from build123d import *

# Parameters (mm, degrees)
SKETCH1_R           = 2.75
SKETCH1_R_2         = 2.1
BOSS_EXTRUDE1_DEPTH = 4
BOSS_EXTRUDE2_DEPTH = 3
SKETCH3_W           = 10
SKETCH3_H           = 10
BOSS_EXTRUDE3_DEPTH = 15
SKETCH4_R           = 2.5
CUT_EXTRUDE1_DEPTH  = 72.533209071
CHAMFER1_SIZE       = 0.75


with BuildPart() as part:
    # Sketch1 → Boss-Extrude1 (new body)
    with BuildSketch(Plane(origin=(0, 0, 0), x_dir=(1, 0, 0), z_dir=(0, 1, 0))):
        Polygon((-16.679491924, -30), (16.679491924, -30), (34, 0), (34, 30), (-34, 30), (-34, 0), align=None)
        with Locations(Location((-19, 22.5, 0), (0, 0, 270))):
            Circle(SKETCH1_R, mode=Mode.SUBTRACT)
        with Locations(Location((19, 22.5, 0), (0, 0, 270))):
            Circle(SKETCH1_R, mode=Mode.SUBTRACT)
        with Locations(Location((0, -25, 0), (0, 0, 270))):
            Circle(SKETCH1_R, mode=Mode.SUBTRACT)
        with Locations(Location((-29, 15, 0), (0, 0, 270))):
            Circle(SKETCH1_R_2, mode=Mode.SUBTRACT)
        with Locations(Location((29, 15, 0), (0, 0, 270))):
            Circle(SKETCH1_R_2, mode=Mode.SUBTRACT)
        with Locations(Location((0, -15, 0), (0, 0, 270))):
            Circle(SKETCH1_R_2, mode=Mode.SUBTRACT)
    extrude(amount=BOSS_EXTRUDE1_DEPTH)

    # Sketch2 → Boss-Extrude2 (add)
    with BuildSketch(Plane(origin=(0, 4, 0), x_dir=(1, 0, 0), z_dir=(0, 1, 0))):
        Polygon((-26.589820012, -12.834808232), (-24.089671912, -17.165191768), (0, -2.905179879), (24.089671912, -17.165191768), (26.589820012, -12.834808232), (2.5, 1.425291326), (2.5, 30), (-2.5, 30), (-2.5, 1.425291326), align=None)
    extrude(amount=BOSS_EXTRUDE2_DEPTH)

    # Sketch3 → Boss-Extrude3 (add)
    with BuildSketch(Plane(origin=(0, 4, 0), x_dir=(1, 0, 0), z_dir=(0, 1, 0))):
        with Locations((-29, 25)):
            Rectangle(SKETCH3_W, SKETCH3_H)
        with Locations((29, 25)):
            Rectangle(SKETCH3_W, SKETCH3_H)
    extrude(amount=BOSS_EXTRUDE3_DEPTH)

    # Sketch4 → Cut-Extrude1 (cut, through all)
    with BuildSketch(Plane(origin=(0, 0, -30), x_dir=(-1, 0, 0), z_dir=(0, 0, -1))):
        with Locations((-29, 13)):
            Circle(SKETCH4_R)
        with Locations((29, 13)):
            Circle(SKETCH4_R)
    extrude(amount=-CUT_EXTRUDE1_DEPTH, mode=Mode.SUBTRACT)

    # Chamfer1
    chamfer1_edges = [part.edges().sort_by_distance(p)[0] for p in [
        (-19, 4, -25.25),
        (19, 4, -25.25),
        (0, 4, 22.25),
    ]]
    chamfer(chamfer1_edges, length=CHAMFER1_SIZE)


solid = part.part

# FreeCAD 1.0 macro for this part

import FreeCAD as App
import Part
import Sketcher
Q = App.Units.Quantity


def edges_at(feature, points):
    """Names of the edges that pass closest to the given points."""
    edges = feature.Shape.Edges
    near = lambda p: min(range(len(edges)), key=lambda i: edges[i].distToShape(Part.Vertex(*p))[0])
    return sorted({f"Edge{near(p) + 1}" for p in points})

doc = App.newDocument("Part")
body = doc.addObject("PartDesign::Body", "Body")

# Sketch on XZ plane
sketch1 = doc.addObject("Sketcher::SketchObject", "Sketch")
body.addObject(sketch1)
sketch1.AttachmentSupport = (doc.XZ_Plane, [""])
sketch1.MapMode = "FlatFace"
sketch1.addGeometry(Part.LineSegment(App.Vector(-16.7, 30, 0), App.Vector(16.7, 30, 0)), False)
sketch1.addGeometry(Part.LineSegment(App.Vector(16.7, 30, 0), App.Vector(34, 0, 0)), False)
sketch1.addGeometry(Part.LineSegment(App.Vector(34, 0, 0), App.Vector(34, -30, 0)), False)
sketch1.addGeometry(Part.LineSegment(App.Vector(34, -30, 0), App.Vector(-34, -30, 0)), False)
sketch1.addGeometry(Part.LineSegment(App.Vector(-34, -30, 0), App.Vector(-34, 0, 0)), False)
sketch1.addGeometry(Part.LineSegment(App.Vector(-34, 0, 0), App.Vector(-16.7, 30, 0)), False)
sketch1.addGeometry(Part.Circle(App.Vector(0, 25, 0), App.Vector(0, 0, 1), 2.8), False)
sketch1.addGeometry(Part.Circle(App.Vector(0, 15, 0), App.Vector(0, 0, 1), 2.1), False)
sketch1.addGeometry(Part.Circle(App.Vector(-29, -15, 0), App.Vector(0, 0, 1), 2.1), False)
sketch1.addGeometry(Part.Circle(App.Vector(-19, -22.5, 0), App.Vector(0, 0, 1), 2.8), False)
sketch1.addGeometry(Part.Circle(App.Vector(29, -15, 0), App.Vector(0, 0, 1), 2.1), False)
sketch1.addGeometry(Part.Circle(App.Vector(19, -22.5, 0), App.Vector(0, 0, 1), 2.8), False)
sketch1.addConstraint(Sketcher.Constraint("Coincident", 0, 2, 1, 1))
sketch1.addConstraint(Sketcher.Constraint("Coincident", 1, 2, 2, 1))
sketch1.addConstraint(Sketcher.Constraint("Coincident", 2, 2, 3, 1))
sketch1.addConstraint(Sketcher.Constraint("Coincident", 3, 2, 4, 1))
sketch1.addConstraint(Sketcher.Constraint("Coincident", 4, 2, 5, 1))
sketch1.addConstraint(Sketcher.Constraint("Coincident", 5, 2, 0, 1))
sketch1.addConstraint(Sketcher.Constraint("Horizontal", 0))
sketch1.addConstraint(Sketcher.Constraint("Vertical", 2))
sketch1.addConstraint(Sketcher.Constraint("Horizontal", 3))
sketch1.addConstraint(Sketcher.Constraint("Vertical", 4))
sketch1.addConstraint(Sketcher.Constraint("Equal", 7, 8))
sketch1.addConstraint(Sketcher.Constraint("Equal", 6, 9))
sketch1.addConstraint(Sketcher.Constraint("Equal", 8, 10))
sketch1.addConstraint(Sketcher.Constraint("Equal", 9, 11))
sketch1.addConstraint(Sketcher.Constraint("Symmetric", 1, 2, 4, 2, -1, 1))
sketch1.addConstraint(Sketcher.Constraint("Symmetric", 8, 3, 10, 3, -2))
sketch1.addConstraint(Sketcher.Constraint("Symmetric", 9, 3, 11, 3, -2))
sketch1.addConstraint(Sketcher.Constraint("PointOnObject", 6, 3, -2))
sketch1.addConstraint(Sketcher.Constraint("PointOnObject", 7, 3, -2))
sketch1.addConstraint(Sketcher.Constraint("PointOnObject", 1, 2, -1))
sketch1.addConstraint(Sketcher.Constraint("Equal", 1, 5))
sketch1.addConstraint(Sketcher.Constraint("Diameter", 6, 5.5))
sketch1.addConstraint(Sketcher.Constraint("Diameter", 7, 4.2))
sketch1.addConstraint(Sketcher.Constraint("DistanceX", 3, 2, 3, 1, 68.0))
sketch1.addConstraint(Sketcher.Constraint("DistanceY", 2, 2, 2, 1, 30.0))
sketch1.addConstraint(Sketcher.Constraint("Angle", 1, Q("-60 deg")))
sketch1.addConstraint(Sketcher.Constraint("DistanceY", -1, 1, 6, 3, 25.0))
sketch1.addConstraint(Sketcher.Constraint("DistanceY", -1, 1, 7, 3, 15.0))
sketch1.addConstraint(Sketcher.Constraint("DistanceX", 8, 3, -1, 1, 29.0))
sketch1.addConstraint(Sketcher.Constraint("DistanceY", 8, 3, -1, 1, 15.0))
sketch1.addConstraint(Sketcher.Constraint("DistanceX", 9, 3, -1, 1, 19.0))
sketch1.addConstraint(Sketcher.Constraint("DistanceY", -1, 1, 0, 2, 30.0))
sketch1.addConstraint(Sketcher.Constraint("DistanceY", 9, 3, -1, 1, 22.5))
pad1 = doc.addObject("PartDesign::Pad", "Pad")
body.addObject(pad1)
pad1.Profile = sketch1
pad1.Length = 4
pad1.Reversed = True

# Sketch on XZ plane
sketch2 = doc.addObject("Sketcher::SketchObject", "Sketch001")
body.addObject(sketch2)
sketch2.AttachmentSupport = (doc.XZ_Plane, [""])
sketch2.MapMode = "FlatFace"
sketch2.AttachmentOffset = App.Placement(App.Vector(0, 0, -4), App.Rotation())
sketch2.addGeometry(Part.LineSegment(App.Vector(-27, 13, 0), App.Vector(-24, 17, 0)), False)
sketch2.addGeometry(Part.LineSegment(App.Vector(-24, 17, 0), App.Vector(0, 3, 0)), False)
sketch2.addGeometry(Part.LineSegment(App.Vector(0, 3, 0), App.Vector(24, 17, 0)), False)
sketch2.addGeometry(Part.LineSegment(App.Vector(24, 17, 0), App.Vector(27, 13, 0)), False)
sketch2.addGeometry(Part.LineSegment(App.Vector(27, 13, 0), App.Vector(2, -1, 0)), False)
sketch2.addGeometry(Part.LineSegment(App.Vector(2, -1, 0), App.Vector(2, -30, 0)), False)
sketch2.addGeometry(Part.LineSegment(App.Vector(2, -30, 0), App.Vector(-2, -30, 0)), False)
sketch2.addGeometry(Part.LineSegment(App.Vector(-2, -30, 0), App.Vector(-2, -1, 0)), False)
sketch2.addGeometry(Part.LineSegment(App.Vector(-2, -1, 0), App.Vector(-27, 13, 0)), False)
sketch2.addConstraint(Sketcher.Constraint("Coincident", 0, 2, 1, 1))
sketch2.addConstraint(Sketcher.Constraint("Coincident", 1, 2, 2, 1))
sketch2.addConstraint(Sketcher.Constraint("Coincident", 2, 2, 3, 1))
sketch2.addConstraint(Sketcher.Constraint("Coincident", 3, 2, 4, 1))
sketch2.addConstraint(Sketcher.Constraint("Coincident", 4, 2, 5, 1))
sketch2.addConstraint(Sketcher.Constraint("Coincident", 5, 2, 6, 1))
sketch2.addConstraint(Sketcher.Constraint("Coincident", 6, 2, 7, 1))
sketch2.addConstraint(Sketcher.Constraint("Coincident", 7, 2, 8, 1))
sketch2.addConstraint(Sketcher.Constraint("Coincident", 8, 2, 0, 1))
sketch2.addConstraint(Sketcher.Constraint("Vertical", 5))
sketch2.addConstraint(Sketcher.Constraint("Horizontal", 6))
sketch2.addConstraint(Sketcher.Constraint("Vertical", 7))
sketch2.addConstraint(Sketcher.Constraint("Symmetric", 0, 2, 2, 2, -2))
sketch2.addConstraint(Sketcher.Constraint("Symmetric", 4, 2, 7, 2, -2))
sketch2.addConstraint(Sketcher.Constraint("Symmetric", 3, 2, 8, 2, -2))
sketch2.addConstraint(Sketcher.Constraint("PointOnObject", 1, 2, -2))
sketch2.addConstraint(Sketcher.Constraint("Parallel", 2, 4))
sketch2.addConstraint(Sketcher.Constraint("DistanceX", 6, 2, 6, 1, 5.0))
sketch2.addConstraint(Sketcher.Constraint("Angle", 0, Q("60 deg")))
sketch2.addConstraint(Sketcher.Constraint("DistanceY", 5, 2, -1, 1, 30.0))
sketch2.addConstraint(Sketcher.Constraint("DistanceY", 5, 2, 5, 1, 28.574709))
sketch2.addConstraint(Sketcher.Constraint("DistanceY", 4, 2, 3, 2, 14.2601))
sketch2.addConstraint(Sketcher.Constraint("DistanceX", 0, 2, -1, 1, 24.089672))
sketch2.addConstraint(Sketcher.Constraint("DistanceY", -1, 1, 0, 2, 17.165192))
pad2 = doc.addObject("PartDesign::Pad", "Pad001")
body.addObject(pad2)
pad2.Profile = sketch2
pad2.Length = 3
pad2.Reversed = True

# Sketch on XZ plane
sketch3 = doc.addObject("Sketcher::SketchObject", "Sketch002")
body.addObject(sketch3)
sketch3.AttachmentSupport = (doc.XZ_Plane, [""])
sketch3.MapMode = "FlatFace"
sketch3.AttachmentOffset = App.Placement(App.Vector(0, 0, -4), App.Rotation())
sketch3.addGeometry(Part.LineSegment(App.Vector(-34, -30, 0), App.Vector(-34, -20, 0)), False)
sketch3.addGeometry(Part.LineSegment(App.Vector(-34, -20, 0), App.Vector(-24, -20, 0)), False)
sketch3.addGeometry(Part.LineSegment(App.Vector(-24, -20, 0), App.Vector(-24, -30, 0)), False)
sketch3.addGeometry(Part.LineSegment(App.Vector(-24, -30, 0), App.Vector(-34, -30, 0)), False)
sketch3.addGeometry(Part.LineSegment(App.Vector(24, -30, 0), App.Vector(24, -20, 0)), False)
sketch3.addGeometry(Part.LineSegment(App.Vector(24, -20, 0), App.Vector(34, -20, 0)), False)
sketch3.addGeometry(Part.LineSegment(App.Vector(34, -20, 0), App.Vector(34, -30, 0)), False)
sketch3.addGeometry(Part.LineSegment(App.Vector(34, -30, 0), App.Vector(24, -30, 0)), False)
sketch3.addConstraint(Sketcher.Constraint("Coincident", 0, 2, 1, 1))
sketch3.addConstraint(Sketcher.Constraint("Coincident", 1, 2, 2, 1))
sketch3.addConstraint(Sketcher.Constraint("Coincident", 2, 2, 3, 1))
sketch3.addConstraint(Sketcher.Constraint("Coincident", 3, 2, 0, 1))
sketch3.addConstraint(Sketcher.Constraint("Coincident", 4, 2, 5, 1))
sketch3.addConstraint(Sketcher.Constraint("Coincident", 5, 2, 6, 1))
sketch3.addConstraint(Sketcher.Constraint("Coincident", 6, 2, 7, 1))
sketch3.addConstraint(Sketcher.Constraint("Coincident", 7, 2, 4, 1))
sketch3.addConstraint(Sketcher.Constraint("Vertical", 0))
sketch3.addConstraint(Sketcher.Constraint("Horizontal", 1))
sketch3.addConstraint(Sketcher.Constraint("Vertical", 2))
sketch3.addConstraint(Sketcher.Constraint("Horizontal", 3))
sketch3.addConstraint(Sketcher.Constraint("Vertical", 4))
sketch3.addConstraint(Sketcher.Constraint("Horizontal", 5))
sketch3.addConstraint(Sketcher.Constraint("Vertical", 6))
sketch3.addConstraint(Sketcher.Constraint("Horizontal", 7))
sketch3.addConstraint(Sketcher.Constraint("Symmetric", 1, 2, 4, 2, -2))
sketch3.addConstraint(Sketcher.Constraint("Symmetric", 3, 2, 6, 2, -2))
sketch3.addConstraint(Sketcher.Constraint("Equal", 7, 0))
sketch3.addConstraint(Sketcher.Constraint("DistanceX", 1, 1, 1, 2, 10.0))
sketch3.addConstraint(Sketcher.Constraint("DistanceX", 0, 2, -1, 1, 34.0))
sketch3.addConstraint(Sketcher.Constraint("DistanceY", 0, 2, -1, 1, 20.0))
pad3 = doc.addObject("PartDesign::Pad", "Pad002")
body.addObject(pad3)
pad3.Profile = sketch3
pad3.Length = 15
pad3.Reversed = True

# Sketch on XY plane
sketch4 = doc.addObject("Sketcher::SketchObject", "Sketch003")
body.addObject(sketch4)
sketch4.AttachmentSupport = (doc.XY_Plane, [""])
sketch4.MapMode = "FlatFace"
sketch4.AttachmentOffset = App.Placement(App.Vector(0, 0, -30), App.Rotation())
sketch4.addGeometry(Part.Circle(App.Vector(29, 13, 0), App.Vector(0, 0, 1), 2.5), False)
sketch4.addGeometry(Part.Circle(App.Vector(-29, 13, 0), App.Vector(0, 0, 1), 2.5), False)
sketch4.addConstraint(Sketcher.Constraint("Equal", 0, 1))
sketch4.addConstraint(Sketcher.Constraint("Symmetric", 0, 3, 1, 3, -2))
sketch4.addConstraint(Sketcher.Constraint("Diameter", 0, 5.0))
sketch4.addConstraint(Sketcher.Constraint("DistanceX", -1, 1, 0, 3, 29.0))
sketch4.addConstraint(Sketcher.Constraint("DistanceY", -1, 1, 0, 3, 13.0))
pocket1 = doc.addObject("PartDesign::Pocket", "Pocket")
body.addObject(pocket1)
pocket1.Profile = sketch4
pocket1.Type = "ThroughAll"
pocket1.Reversed = True
doc.recompute()

chamfer = doc.addObject("PartDesign::Chamfer", "Chamfer")
body.addObject(chamfer)
chamfer.Base = (pocket1, edges_at(pocket1, [(-19, 4, -25.25), (19, 4, -25.25), (0, 4, 22.25)]))
chamfer.Size = 0.75

doc.recompute()
